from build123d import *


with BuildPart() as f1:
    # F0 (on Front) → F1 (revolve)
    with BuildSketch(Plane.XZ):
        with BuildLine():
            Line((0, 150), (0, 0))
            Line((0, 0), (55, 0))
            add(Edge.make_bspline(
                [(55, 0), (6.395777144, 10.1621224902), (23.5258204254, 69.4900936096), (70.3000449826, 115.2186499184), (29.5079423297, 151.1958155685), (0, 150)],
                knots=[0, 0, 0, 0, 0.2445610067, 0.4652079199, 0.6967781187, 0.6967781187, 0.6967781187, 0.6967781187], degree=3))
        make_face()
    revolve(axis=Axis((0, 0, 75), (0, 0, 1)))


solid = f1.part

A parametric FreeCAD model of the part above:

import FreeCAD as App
import Part
import Sketcher

V = App.Vector

doc = App.newDocument("Part")
body = doc.addObject("PartDesign::Body", "Body")

sketch1 = body.newObject("Sketcher::SketchObject", "Sketch")
sketch1.AttachmentSupport = (doc.getObject("XZ_Plane"), [""])
sketch1.MapMode = "FlatFace"
sketch1.addGeometry(Part.LineSegment(V(0, 150, 0), V(0, 0, 0)), False)
sketch1.addGeometry(Part.LineSegment(V(0, 0, 0), V(55, 0, 0)), False)
sketch1.addGeometry(Part.BSplineCurve([V(55, 0, 0), V(6.395777, 10.162122, 0), V(23.52582, 69.490094, 0), V(70.300045, 115.21865, 0), V(29.507942, 151.195816, 0), V(0, 150, 0)], [4, 1, 1, 4], [0, 0.244561007, 0.46520792, 0.696778119], False, 3, [1, 1, 1, 1, 1, 1], False), False)
sketch1.addConstraint(Sketcher.Constraint("Block", 2))
sketch1.addConstraint(Sketcher.Constraint("Coincident", 0, 2, 1, 1))
sketch1.addConstraint(Sketcher.Constraint("Coincident", 1, 2, 2, 1))
sketch1.addConstraint(Sketcher.Constraint("Coincident", 2, 2, 0, 1))
sketch1.addConstraint(Sketcher.Constraint("Vertical", 0))
sketch1.addConstraint(Sketcher.Constraint("Horizontal", 1))
revolution = body.newObject("PartDesign::Revolution", "Revolution")
revolution.Profile = sketch1
revolution.ReferenceAxis = (sketch1, ["V_Axis"])
revolution.Angle = 360

doc.recompute()
